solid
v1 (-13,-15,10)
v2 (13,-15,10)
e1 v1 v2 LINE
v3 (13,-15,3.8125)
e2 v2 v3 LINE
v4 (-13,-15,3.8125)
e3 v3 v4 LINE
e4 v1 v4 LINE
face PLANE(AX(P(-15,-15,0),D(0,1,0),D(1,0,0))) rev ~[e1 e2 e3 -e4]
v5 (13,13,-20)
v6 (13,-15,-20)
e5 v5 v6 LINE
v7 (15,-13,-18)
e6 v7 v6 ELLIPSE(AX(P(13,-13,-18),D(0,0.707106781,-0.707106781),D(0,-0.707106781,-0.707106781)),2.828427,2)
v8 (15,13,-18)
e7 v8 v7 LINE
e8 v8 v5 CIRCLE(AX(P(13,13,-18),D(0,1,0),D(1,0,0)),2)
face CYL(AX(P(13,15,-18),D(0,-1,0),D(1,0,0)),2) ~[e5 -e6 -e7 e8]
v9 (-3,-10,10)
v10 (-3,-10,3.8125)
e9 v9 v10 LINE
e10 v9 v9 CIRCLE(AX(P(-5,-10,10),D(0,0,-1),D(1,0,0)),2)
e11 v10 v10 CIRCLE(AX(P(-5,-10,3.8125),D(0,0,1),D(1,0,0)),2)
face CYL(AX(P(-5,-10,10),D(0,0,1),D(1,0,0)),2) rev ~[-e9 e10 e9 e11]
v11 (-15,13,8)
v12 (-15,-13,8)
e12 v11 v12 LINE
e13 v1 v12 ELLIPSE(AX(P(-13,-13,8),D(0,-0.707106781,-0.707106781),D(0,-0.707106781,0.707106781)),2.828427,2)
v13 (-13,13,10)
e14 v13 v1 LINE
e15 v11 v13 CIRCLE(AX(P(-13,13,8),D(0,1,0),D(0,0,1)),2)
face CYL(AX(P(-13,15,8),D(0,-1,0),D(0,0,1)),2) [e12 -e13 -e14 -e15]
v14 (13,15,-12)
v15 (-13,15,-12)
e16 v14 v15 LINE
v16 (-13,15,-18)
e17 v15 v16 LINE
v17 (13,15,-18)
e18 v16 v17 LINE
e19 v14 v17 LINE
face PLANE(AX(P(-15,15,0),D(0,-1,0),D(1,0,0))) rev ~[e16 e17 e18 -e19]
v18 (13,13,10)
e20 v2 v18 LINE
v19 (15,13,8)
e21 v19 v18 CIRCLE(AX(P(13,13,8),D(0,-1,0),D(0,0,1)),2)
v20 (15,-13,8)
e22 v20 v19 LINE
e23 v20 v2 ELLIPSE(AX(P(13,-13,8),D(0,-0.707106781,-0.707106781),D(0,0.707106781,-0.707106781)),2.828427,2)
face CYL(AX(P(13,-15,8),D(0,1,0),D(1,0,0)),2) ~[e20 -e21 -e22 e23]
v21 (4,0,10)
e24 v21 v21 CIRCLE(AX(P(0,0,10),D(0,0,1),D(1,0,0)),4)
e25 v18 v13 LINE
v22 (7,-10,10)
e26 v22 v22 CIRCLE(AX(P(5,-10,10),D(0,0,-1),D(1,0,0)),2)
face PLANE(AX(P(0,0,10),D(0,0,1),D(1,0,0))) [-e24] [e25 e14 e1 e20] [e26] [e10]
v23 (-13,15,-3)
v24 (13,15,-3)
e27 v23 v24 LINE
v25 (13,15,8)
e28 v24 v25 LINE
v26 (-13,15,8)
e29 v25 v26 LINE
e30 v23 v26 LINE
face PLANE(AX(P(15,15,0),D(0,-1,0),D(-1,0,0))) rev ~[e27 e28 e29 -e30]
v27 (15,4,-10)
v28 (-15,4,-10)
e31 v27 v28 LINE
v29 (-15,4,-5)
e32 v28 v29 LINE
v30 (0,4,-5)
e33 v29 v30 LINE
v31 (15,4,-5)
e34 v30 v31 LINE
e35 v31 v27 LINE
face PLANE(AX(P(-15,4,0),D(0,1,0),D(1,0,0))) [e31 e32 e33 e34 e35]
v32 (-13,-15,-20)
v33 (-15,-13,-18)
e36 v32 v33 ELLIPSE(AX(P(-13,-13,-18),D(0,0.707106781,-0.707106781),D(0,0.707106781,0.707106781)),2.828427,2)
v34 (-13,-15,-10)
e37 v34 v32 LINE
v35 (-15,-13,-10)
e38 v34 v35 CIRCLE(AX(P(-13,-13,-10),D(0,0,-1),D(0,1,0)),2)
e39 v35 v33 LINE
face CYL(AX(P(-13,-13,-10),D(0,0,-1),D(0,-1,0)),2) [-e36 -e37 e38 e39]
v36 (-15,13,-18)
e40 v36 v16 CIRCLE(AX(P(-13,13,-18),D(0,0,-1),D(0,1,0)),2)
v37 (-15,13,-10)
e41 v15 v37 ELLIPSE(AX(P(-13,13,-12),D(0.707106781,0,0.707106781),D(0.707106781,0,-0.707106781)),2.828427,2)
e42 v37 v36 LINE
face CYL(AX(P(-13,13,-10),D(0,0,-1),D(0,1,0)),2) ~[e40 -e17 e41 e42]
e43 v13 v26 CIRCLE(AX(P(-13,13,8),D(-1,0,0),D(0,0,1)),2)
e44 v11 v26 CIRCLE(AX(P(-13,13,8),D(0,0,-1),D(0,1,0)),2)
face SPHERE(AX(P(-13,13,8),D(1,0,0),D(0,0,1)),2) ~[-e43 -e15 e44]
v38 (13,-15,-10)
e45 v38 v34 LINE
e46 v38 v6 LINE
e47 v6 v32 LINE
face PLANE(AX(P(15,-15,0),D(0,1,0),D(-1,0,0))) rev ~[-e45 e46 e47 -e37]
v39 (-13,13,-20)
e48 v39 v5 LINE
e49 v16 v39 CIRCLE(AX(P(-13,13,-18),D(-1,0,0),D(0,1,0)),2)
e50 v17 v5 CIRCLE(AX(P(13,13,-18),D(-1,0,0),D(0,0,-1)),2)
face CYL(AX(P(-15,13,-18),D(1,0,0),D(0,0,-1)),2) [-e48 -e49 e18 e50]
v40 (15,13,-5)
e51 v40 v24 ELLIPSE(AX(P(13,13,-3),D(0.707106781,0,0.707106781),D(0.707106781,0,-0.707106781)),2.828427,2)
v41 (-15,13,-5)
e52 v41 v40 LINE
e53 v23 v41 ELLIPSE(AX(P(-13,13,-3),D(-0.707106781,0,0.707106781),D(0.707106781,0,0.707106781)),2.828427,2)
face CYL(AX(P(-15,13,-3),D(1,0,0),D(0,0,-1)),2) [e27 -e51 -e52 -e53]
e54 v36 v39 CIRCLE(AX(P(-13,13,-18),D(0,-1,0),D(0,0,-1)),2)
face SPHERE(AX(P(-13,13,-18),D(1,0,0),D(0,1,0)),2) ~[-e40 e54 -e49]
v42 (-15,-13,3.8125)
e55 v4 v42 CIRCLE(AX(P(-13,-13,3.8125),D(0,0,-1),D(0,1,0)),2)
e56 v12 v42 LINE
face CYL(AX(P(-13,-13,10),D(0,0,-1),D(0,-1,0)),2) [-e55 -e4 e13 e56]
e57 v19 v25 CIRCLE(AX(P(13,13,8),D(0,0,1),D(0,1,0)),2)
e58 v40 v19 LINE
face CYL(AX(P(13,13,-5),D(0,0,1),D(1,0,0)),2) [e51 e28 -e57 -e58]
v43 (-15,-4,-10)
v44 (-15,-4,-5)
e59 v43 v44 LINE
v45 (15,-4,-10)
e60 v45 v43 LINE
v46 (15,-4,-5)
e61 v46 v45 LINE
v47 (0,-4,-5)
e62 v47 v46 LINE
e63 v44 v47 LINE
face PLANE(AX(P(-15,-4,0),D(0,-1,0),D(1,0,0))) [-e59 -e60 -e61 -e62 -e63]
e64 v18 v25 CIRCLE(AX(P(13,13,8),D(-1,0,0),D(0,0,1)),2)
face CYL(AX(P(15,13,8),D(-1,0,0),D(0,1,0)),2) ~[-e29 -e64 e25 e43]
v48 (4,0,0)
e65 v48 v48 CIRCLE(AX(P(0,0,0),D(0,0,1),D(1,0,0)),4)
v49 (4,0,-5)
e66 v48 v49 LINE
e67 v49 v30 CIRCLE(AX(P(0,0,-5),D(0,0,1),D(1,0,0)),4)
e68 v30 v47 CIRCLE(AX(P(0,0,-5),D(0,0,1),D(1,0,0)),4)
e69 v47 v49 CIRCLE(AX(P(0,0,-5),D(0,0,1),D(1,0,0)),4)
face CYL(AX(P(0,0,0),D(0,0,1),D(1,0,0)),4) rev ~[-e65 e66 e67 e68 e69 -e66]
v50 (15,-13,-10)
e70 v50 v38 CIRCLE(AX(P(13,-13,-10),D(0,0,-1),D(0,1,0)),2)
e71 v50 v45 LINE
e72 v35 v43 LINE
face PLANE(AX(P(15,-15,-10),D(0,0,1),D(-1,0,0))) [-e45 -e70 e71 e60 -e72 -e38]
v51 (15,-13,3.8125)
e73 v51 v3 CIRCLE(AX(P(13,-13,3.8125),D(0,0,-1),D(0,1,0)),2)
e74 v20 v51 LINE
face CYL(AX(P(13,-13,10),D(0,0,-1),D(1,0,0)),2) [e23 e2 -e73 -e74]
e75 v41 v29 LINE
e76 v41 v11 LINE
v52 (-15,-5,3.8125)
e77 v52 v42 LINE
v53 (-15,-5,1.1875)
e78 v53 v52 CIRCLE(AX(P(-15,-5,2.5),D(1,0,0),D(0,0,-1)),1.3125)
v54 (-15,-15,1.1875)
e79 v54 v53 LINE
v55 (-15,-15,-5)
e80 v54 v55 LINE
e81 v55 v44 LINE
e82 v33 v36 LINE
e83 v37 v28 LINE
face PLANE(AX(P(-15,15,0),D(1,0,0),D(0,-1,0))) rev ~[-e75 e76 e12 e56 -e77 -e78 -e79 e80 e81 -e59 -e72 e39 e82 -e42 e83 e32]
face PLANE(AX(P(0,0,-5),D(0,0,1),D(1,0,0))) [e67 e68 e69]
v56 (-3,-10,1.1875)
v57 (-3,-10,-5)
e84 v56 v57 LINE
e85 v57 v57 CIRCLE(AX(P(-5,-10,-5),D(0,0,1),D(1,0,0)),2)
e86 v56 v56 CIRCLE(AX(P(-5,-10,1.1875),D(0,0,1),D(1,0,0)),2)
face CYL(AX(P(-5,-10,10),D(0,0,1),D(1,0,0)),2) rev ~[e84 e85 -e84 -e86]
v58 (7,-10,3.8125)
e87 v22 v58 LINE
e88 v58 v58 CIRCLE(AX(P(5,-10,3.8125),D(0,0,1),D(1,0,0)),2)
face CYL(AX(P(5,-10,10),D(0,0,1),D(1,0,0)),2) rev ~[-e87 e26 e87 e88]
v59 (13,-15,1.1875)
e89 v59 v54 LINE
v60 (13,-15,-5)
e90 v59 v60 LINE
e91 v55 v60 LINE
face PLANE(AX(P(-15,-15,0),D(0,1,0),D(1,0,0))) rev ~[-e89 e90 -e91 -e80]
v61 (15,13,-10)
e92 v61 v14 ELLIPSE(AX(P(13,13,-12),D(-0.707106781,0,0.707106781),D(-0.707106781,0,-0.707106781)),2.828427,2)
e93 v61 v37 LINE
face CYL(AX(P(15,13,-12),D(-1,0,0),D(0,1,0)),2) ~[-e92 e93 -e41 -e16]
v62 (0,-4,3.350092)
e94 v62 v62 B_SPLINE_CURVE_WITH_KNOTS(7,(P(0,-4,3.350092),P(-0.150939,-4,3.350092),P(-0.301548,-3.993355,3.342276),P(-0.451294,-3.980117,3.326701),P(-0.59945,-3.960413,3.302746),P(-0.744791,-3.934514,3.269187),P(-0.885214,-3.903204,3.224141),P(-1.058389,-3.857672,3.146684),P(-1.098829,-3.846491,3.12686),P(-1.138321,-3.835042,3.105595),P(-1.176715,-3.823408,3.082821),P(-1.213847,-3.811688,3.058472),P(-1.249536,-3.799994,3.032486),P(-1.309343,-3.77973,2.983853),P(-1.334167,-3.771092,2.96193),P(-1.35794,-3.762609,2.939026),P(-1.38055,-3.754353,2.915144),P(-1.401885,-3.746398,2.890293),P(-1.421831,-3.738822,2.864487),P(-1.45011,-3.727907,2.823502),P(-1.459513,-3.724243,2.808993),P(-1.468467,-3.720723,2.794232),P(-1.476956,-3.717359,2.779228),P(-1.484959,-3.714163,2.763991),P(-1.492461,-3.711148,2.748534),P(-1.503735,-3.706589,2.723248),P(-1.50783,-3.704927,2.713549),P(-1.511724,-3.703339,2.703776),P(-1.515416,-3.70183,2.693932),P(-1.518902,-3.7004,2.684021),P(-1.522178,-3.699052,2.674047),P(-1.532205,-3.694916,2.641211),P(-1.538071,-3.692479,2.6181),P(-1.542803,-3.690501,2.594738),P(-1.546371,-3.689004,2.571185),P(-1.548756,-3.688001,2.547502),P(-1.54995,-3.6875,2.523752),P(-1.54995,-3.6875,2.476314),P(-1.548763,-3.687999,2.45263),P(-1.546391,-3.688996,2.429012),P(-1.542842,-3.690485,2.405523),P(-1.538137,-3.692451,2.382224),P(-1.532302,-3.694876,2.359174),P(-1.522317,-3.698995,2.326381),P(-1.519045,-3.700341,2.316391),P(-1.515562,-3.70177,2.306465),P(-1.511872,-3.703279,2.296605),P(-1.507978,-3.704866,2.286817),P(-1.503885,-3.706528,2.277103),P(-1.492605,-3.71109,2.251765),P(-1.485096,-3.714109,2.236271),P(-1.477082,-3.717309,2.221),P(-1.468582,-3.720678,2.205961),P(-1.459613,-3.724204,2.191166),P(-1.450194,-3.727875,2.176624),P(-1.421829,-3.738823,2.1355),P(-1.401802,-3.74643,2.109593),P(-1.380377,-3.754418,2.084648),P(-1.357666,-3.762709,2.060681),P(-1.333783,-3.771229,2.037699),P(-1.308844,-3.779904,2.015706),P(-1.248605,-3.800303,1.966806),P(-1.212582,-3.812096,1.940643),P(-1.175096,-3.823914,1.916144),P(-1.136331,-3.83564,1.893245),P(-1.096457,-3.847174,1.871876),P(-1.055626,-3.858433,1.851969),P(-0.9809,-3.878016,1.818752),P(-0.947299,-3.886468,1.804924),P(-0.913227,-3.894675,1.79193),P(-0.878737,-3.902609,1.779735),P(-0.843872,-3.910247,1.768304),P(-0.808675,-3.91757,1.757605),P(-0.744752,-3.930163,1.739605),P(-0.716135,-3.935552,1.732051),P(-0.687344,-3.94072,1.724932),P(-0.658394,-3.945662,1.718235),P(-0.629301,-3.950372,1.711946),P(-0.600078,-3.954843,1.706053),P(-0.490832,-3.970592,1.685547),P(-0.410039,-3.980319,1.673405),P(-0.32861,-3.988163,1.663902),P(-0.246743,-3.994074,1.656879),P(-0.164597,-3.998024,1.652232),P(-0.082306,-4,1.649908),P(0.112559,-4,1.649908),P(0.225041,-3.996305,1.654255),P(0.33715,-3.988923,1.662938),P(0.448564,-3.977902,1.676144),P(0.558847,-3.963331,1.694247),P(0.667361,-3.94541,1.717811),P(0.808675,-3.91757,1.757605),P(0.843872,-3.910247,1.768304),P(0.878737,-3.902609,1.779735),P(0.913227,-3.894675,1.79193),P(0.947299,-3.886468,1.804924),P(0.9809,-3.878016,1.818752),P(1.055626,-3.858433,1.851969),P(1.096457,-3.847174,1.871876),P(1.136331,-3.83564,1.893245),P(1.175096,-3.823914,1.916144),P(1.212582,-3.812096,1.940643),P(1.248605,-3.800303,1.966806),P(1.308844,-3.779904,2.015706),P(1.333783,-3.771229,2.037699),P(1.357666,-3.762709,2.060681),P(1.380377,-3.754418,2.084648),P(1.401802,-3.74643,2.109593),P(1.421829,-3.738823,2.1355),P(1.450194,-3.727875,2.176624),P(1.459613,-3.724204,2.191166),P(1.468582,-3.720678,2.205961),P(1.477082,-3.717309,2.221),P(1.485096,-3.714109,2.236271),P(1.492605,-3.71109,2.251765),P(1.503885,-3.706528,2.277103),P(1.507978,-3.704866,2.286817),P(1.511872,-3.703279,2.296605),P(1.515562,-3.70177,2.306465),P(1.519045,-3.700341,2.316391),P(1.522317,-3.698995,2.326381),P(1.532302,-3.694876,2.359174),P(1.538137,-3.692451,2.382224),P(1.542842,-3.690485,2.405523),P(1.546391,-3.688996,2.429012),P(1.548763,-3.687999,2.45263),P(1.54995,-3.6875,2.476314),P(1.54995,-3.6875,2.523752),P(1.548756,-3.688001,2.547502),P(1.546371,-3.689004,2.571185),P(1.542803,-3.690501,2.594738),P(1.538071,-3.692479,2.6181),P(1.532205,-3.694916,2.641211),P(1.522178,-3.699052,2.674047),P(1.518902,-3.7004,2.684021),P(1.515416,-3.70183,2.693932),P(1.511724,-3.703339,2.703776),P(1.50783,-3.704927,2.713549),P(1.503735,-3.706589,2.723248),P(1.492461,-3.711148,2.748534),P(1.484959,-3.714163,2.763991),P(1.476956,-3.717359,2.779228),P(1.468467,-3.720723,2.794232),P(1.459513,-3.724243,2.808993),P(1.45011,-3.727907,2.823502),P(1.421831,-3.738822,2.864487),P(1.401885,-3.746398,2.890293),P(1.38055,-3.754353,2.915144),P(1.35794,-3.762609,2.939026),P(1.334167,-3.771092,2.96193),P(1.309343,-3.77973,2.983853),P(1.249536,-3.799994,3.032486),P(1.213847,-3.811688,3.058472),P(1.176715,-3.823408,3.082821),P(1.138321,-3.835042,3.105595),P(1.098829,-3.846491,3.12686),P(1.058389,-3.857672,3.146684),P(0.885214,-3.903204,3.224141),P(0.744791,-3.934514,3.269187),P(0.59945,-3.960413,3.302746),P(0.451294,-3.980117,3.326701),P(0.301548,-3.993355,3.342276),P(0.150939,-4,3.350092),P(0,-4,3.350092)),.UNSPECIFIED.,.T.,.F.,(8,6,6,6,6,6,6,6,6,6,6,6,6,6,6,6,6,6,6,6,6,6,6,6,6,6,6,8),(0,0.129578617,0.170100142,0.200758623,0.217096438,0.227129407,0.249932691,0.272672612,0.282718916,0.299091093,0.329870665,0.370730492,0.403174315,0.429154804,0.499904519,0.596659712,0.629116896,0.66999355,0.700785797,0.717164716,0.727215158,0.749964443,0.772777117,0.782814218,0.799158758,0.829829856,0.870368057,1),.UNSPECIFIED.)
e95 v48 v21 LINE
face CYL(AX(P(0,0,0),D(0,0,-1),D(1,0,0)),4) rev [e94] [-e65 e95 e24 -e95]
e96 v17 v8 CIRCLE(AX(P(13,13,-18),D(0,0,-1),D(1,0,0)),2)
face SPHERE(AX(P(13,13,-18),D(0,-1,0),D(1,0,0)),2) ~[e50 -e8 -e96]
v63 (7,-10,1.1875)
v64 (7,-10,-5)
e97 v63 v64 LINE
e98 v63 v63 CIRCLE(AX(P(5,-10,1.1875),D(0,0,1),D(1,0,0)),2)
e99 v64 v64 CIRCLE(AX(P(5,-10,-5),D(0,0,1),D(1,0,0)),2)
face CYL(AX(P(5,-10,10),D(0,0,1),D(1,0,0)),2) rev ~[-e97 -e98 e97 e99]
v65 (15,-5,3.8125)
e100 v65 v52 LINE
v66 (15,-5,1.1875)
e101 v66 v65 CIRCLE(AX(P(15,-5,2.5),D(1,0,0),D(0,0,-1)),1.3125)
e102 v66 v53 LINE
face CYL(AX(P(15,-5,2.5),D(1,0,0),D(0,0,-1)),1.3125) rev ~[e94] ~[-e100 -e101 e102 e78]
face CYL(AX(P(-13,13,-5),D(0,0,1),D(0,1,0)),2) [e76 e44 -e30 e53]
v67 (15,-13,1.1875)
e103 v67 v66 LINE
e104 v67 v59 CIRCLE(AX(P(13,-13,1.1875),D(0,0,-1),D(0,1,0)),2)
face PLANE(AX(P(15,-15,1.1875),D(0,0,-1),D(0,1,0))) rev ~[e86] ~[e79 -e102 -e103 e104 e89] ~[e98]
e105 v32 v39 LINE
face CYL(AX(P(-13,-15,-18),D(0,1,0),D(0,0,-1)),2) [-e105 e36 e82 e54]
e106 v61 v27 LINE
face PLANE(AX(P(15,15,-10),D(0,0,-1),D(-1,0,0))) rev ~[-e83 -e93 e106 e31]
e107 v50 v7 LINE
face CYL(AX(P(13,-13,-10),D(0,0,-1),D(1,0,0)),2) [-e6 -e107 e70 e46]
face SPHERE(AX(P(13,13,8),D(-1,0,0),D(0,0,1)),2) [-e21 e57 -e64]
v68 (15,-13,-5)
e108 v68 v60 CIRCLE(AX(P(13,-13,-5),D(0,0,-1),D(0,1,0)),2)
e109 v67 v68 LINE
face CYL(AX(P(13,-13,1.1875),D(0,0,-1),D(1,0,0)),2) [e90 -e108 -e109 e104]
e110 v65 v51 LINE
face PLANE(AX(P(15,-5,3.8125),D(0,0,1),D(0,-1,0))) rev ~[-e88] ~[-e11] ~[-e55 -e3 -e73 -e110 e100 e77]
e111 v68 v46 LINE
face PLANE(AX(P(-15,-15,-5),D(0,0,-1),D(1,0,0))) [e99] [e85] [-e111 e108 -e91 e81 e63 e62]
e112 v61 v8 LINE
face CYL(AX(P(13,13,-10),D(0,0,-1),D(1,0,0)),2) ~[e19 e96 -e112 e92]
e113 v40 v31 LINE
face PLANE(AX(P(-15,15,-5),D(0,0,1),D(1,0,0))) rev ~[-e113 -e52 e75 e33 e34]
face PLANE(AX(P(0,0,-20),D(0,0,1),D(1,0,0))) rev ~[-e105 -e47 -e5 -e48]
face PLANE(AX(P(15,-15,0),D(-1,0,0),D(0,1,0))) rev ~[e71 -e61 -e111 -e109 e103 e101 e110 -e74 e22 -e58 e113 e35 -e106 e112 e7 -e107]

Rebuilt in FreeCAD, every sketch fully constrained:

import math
import FreeCAD as App
import Part
import Sketcher
from FreeCAD import Vector


def edges_at(feature, points):
    """Names of the edges that pass closest to the given points."""
    edges = feature.Shape.Edges
    near = lambda p: min(range(len(edges)), key=lambda i: edges[i].distToShape(Part.Vertex(*p))[0])
    return sorted({f"Edge{near(p) + 1}" for p in points})


def add_polygon(sketch, points):
    """Adds a closed chain of lines whose ends are joined by coincident constraints."""
    first, n = sketch.GeometryCount, len(points)
    for a, b in zip(points, points[1:] + points[:1]):
        sketch.addGeometry(Part.LineSegment(App.Vector(*a, 0), App.Vector(*b, 0)), False)
    for i in range(n):
        sketch.addConstraint(Sketcher.Constraint("Coincident", first + i, 2, first + (i + 1) % n, 1))

doc = App.newDocument("Part")
body = doc.addObject("PartDesign::Body", "Body")

# Sketch on XY plane
sketch1 = body.newObject("Sketcher::SketchObject", "Sketch")
sketch1.AttachmentSupport = (doc.getObject("XY_Plane"), [""])
sketch1.MapMode = "FlatFace"
add_polygon(sketch1, [(-15, -15), (15, -15), (15, 15), (-15, 15)])  # lines 0-3
sketch1.addConstraint([
    Sketcher.Constraint("Horizontal", 0),
    Sketcher.Constraint("Vertical", 1),
    Sketcher.Constraint("Horizontal", 2),
    Sketcher.Constraint("Vertical", 3),
    Sketcher.Constraint("Symmetric", 0, 2, 2, 2, -1, 1),
    Sketcher.Constraint("Equal", 2, 1),
    Sketcher.Constraint("DistanceX", 0, 1, 0, 2, 30.0),
])
pad1 = body.newObject("PartDesign::Pad", "Pad")
pad1.Profile = sketch1
pad1.Length = 20
pad1.Reversed = True

# Sketch on XZ plane
sketch2 = body.newObject("Sketcher::SketchObject", "Sketch001")
sketch2.AttachmentSupport = (doc.getObject("XZ_Plane"), [""])
sketch2.MapMode = "FlatFace"
sketch2.AttachmentOffset = App.Placement(Vector(0, 0, -15), App.Rotation())
add_polygon(sketch2, [(-15, -5), (15, -5), (15, -10), (-15, -10)])  # lines 0-3
sketch2.addConstraint([
    Sketcher.Constraint("Horizontal", 0),
    Sketcher.Constraint("Vertical", 1),
    Sketcher.Constraint("Horizontal", 2),
    Sketcher.Constraint("Vertical", 3),
    Sketcher.Constraint("DistanceY", 1, 2, 1, 1, 5.0),
    Sketcher.Constraint("DistanceY", 0, 2, -1, 1, 5.0),
    Sketcher.Constraint("DistanceX", 0, 1, 0, 2, 30.0),
    Sketcher.Constraint("DistanceX", -1, 1, 0, 2, 15.0),
])
pocket1 = body.newObject("PartDesign::Pocket", "Pocket")
pocket1.Profile = sketch2
pocket1.Length = 11
pocket1.Reversed = True

# Sketch on XZ plane
sketch3 = body.newObject("Sketcher::SketchObject", "Sketch002")
sketch3.AttachmentSupport = (doc.getObject("XZ_Plane"), [""])
sketch3.MapMode = "FlatFace"
sketch3.AttachmentOffset = App.Placement(Vector(0, 0, 15), App.Rotation())
add_polygon(sketch3, [(15, -10), (15, -5), (-15, -5), (-15, -10)])  # lines 0-3
sketch3.addConstraint([
    Sketcher.Constraint("Vertical", 0),
    Sketcher.Constraint("Horizontal", 1),
    Sketcher.Constraint("Vertical", 2),
    Sketcher.Constraint("Horizontal", 3),
    Sketcher.Constraint("DistanceY", 0, 1, 0, 2, 5.0),
    Sketcher.Constraint("DistanceY", 0, 2, -1, 1, 5.0),
    Sketcher.Constraint("DistanceX", 1, 2, 1, 1, 30.0),
    Sketcher.Constraint("DistanceX", -1, 1, 0, 2, 15.0),
])
pocket2 = body.newObject("PartDesign::Pocket", "Pocket001")
pocket2.Profile = sketch3
pocket2.Length = 11

# Sketch on XY plane
sketch4 = body.newObject("Sketcher::SketchObject", "Sketch003")
sketch4.AttachmentSupport = (doc.getObject("XY_Plane"), [""])
sketch4.MapMode = "FlatFace"
sketch4.addGeometry(Part.Circle(Vector(0, 0, 0), Vector(0, 0, 1), 4), False)
sketch4.addConstraint([
    Sketcher.Constraint("Coincident", 0, 3, -1, 1),
    Sketcher.Constraint("Diameter", 0, 8.0),
])
pocket3 = body.newObject("PartDesign::Pocket", "Pocket002")
pocket3.Profile = sketch4
pocket3.Length = 5

# Sketch on XY plane
sketch5 = body.newObject("Sketcher::SketchObject", "Sketch004")
sketch5.AttachmentSupport = (doc.getObject("XY_Plane"), [""])
sketch5.MapMode = "FlatFace"
add_polygon(sketch5, [(15, -15), (15, 15), (-15, 15), (-15, -15)])  # lines 0-3
sketch5.addGeometry(Part.Circle(Vector(0, 0, 0), Vector(0, 0, 1), 4), False)  # 4
sketch5.addConstraint([
    Sketcher.Constraint("Vertical", 0),
    Sketcher.Constraint("Horizontal", 1),
    Sketcher.Constraint("Vertical", 2),
    Sketcher.Constraint("Horizontal", 3),
    Sketcher.Constraint("Coincident", 4, 3, -1, 1),
    Sketcher.Constraint("Symmetric", 0, 2, 2, 2, -1, 1),
    Sketcher.Constraint("Equal", 3, 0),
    Sketcher.Constraint("Diameter", 4, 8.0),
    Sketcher.Constraint("DistanceX", 1, 2, 1, 1, 30.0),
])
pad2 = body.newObject("PartDesign::Pad", "Pad001")
pad2.Profile = sketch5
pad2.Length = 10

# Sketch on YZ plane
sketch6 = body.newObject("Sketcher::SketchObject", "Sketch005")
sketch6.AttachmentSupport = (doc.getObject("YZ_Plane"), [""])
sketch6.MapMode = "FlatFace"
sketch6.AttachmentOffset = App.Placement(Vector(0, 0, 15), App.Rotation())
sketch6.addGeometry([
    Part.LineSegment(Vector(-15, 3.8, 0), Vector(-15, 1.2, 0)),
    Part.LineSegment(Vector(-15, 1.2, 0), Vector(-5, 1.2, 0)),
    Part.ArcOfCircle(Part.Circle(Vector(-5, 2.5, 0), Vector(0, 0, 1), 1.3), math.radians(-90), math.radians(90)),
    Part.LineSegment(Vector(-5, 3.8, 0), Vector(-15, 3.8, 0)),
], False)
sketch6.addConstraint([
    Sketcher.Constraint("Coincident", 0, 2, 1, 1),
    Sketcher.Constraint("Tangent", 1, 2, 2, 1),
    Sketcher.Constraint("Tangent", 2, 2, 3, 1),
    Sketcher.Constraint("Coincident", 3, 2, 0, 1),
    Sketcher.Constraint("Vertical", 0),
    Sketcher.Constraint("Horizontal", 1),
    Sketcher.Constraint("Horizontal", 3),
    Sketcher.Constraint("DistanceX", 1, 1, 1, 2, 10.0),
    Sketcher.Constraint("Radius", 2, 1.3125),
    Sketcher.Constraint("DistanceX", 2, 3, -1, 1, 5.0),
    Sketcher.Constraint("DistanceY", -1, 1, 2, 3, 2.5),
])
pocket4 = body.newObject("PartDesign::Pocket", "Pocket003")
pocket4.Profile = sketch6
pocket4.Type = "ThroughAll"

# Sketch on XY plane
sketch7 = body.newObject("Sketcher::SketchObject", "Sketch006")
sketch7.AttachmentSupport = (doc.getObject("XY_Plane"), [""])
sketch7.MapMode = "FlatFace"
sketch7.AttachmentOffset = App.Placement(Vector(0, 0, 10), App.Rotation())
sketch7.addGeometry([
    Part.Circle(Vector(5, -10, 0), Vector(0, 0, 1), 2),
    Part.Circle(Vector(-5, -10, 0), Vector(0, 0, 1), 2),
], False)
sketch7.addConstraint([
    Sketcher.Constraint("Equal", 0, 1),
    Sketcher.Constraint("Symmetric", 0, 3, 1, 3, -2),
    Sketcher.Constraint("Diameter", 0, 4.0),
    Sketcher.Constraint("DistanceX", -1, 1, 0, 3, 5.0),
    Sketcher.Constraint("DistanceY", 0, 3, -1, 1, 10.0),
])
pocket5 = body.newObject("PartDesign::Pocket", "Pocket004")
pocket5.Profile = sketch7
pocket5.Length = 15
doc.recompute()

fillet = body.newObject("PartDesign::Fillet", "Fillet")
fillet.Base = (pocket5, edges_at(pocket5, [
    (0, 15, 10),
    (15, 0, 10),
    (-15, 0, 10),
    (-15, 15, 2.5),
    (0, 15, -5),
    (15, 15, 2.5),
    (15, -15, -1.906),
    (15, -15, 6.906),
    (15, 0, -20),
    (15, 15, -15),
    (0, 15, -20),
    (-15, 15, -15),
    (0, 15, -10),
    (15, -15, -15),
    (-15, 0, -20),
    (-15, -15, -15),
    (-15, -15, 6.906),
]))
fillet.Radius = 2

doc.recompute()
